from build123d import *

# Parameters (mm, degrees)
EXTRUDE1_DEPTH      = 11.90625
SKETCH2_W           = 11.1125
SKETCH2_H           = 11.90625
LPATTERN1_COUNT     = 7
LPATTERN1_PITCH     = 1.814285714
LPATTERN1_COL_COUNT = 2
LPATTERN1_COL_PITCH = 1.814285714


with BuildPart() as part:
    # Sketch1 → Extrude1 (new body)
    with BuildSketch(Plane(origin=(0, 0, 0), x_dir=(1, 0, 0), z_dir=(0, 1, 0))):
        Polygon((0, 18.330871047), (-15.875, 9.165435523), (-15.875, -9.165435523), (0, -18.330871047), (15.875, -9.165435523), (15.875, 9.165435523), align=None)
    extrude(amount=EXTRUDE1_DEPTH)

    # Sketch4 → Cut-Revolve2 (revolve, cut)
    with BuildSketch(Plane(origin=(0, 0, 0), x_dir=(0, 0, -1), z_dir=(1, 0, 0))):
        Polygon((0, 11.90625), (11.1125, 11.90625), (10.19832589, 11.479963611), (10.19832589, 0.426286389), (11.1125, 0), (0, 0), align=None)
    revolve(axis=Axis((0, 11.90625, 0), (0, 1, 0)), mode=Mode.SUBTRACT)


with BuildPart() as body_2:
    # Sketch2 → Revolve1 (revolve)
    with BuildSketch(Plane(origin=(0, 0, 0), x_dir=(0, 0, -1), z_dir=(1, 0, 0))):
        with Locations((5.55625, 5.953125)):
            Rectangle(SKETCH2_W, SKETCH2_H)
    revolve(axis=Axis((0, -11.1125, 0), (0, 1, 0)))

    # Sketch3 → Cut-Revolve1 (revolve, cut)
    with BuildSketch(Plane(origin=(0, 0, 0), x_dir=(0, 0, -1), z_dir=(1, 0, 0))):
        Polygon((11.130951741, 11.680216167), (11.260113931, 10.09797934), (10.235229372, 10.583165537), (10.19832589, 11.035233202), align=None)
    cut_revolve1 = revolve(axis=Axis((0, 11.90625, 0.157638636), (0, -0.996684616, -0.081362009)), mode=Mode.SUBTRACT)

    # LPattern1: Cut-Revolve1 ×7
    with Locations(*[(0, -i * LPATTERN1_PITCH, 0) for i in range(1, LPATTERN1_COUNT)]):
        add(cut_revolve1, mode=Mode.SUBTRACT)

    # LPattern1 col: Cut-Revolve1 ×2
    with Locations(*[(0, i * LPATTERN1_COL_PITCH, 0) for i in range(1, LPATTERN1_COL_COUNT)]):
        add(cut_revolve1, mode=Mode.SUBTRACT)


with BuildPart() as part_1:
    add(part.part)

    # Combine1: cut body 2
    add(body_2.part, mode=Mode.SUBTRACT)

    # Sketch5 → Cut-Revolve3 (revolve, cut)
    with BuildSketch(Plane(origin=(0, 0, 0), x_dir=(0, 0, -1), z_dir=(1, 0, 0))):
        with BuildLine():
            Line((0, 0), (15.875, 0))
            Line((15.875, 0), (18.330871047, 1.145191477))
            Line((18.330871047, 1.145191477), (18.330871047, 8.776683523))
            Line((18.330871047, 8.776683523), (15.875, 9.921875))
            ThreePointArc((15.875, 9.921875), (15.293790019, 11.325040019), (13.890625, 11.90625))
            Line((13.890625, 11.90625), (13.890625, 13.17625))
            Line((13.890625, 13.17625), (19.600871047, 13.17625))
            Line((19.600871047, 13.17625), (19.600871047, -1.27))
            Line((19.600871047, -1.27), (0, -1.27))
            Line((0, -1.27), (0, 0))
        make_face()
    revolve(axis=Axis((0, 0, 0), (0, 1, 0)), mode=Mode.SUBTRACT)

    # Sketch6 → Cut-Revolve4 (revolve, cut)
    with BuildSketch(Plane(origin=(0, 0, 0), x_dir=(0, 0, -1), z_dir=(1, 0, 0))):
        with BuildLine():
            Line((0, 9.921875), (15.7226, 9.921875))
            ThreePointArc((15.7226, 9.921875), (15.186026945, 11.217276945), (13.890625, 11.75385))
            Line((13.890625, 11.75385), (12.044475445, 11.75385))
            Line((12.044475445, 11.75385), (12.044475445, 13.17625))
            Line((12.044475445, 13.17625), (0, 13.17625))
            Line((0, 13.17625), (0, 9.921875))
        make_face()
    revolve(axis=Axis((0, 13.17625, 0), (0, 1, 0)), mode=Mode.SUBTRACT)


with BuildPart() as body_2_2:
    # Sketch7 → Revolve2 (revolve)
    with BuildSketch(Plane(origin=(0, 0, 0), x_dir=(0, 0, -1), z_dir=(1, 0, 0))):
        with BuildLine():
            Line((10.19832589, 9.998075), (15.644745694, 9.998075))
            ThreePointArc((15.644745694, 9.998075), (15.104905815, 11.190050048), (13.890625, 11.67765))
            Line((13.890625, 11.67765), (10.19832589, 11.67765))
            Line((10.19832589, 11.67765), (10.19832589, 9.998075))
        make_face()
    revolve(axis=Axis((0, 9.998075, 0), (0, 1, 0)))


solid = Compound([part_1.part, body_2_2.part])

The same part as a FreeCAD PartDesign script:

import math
import FreeCAD as App
import Part
import Sketcher
Q = App.Units.Quantity


def add_polygon(sketch, points):
    """Adds a closed chain of lines whose ends are joined by coincident constraints."""
    first, n = sketch.GeometryCount, len(points)
    for a, b in zip(points, points[1:] + points[:1]):
        sketch.addGeometry(Part.LineSegment(App.Vector(*a, 0), App.Vector(*b, 0)), False)
    for i in range(n):
        sketch.addConstraint(Sketcher.Constraint("Coincident", first + i, 2, first + (i + 1) % n, 1))

doc = App.newDocument("Part")
body = doc.addObject("PartDesign::Body", "Body")

# Sketch on XZ plane
sketch1 = body.newObject("Sketcher::SketchObject", "Sketch")
sketch1.AttachmentSupport = (doc.getObject("XZ_Plane"), [""])
sketch1.MapMode = "FlatFace"
add_polygon(sketch1, [(0, -18), (-16, -9), (-16, 9), (0, 18), (16, 9), (16, -9)])  # lines 0-5
sketch1.addConstraint(Sketcher.Constraint("Vertical", 1))
sketch1.addConstraint(Sketcher.Constraint("Vertical", 4))
sketch1.addConstraint(Sketcher.Constraint("Symmetric", 0, 2, 3, 2, -1, 1))
sketch1.addConstraint(Sketcher.Constraint("Symmetric", 2, 2, 5, 2, -1, 1))
sketch1.addConstraint(Sketcher.Constraint("PointOnObject", 2, 2, -2))
sketch1.addConstraint(Sketcher.Constraint("Parallel", 2, 5))
sketch1.addConstraint(Sketcher.Constraint("Horizontal", 1, 2, 3, 2))
sketch1.addConstraint(Sketcher.Constraint("Angle", 0, Q("150 deg")))
sketch1.addConstraint(Sketcher.Constraint("DistanceX", 1, 2, 3, 2, Q("1.25 in")))
sketch1.addConstraint(Sketcher.Constraint("DistanceY", 1, 1, 1, 2, Q("18.330871 mm")))
pad1 = body.newObject("PartDesign::Pad", "Pad")
pad1.Profile = sketch1
pad1.Length = Q("0.46875 in")
pad1.Reversed = True

# Sketch on YZ plane
sketch2 = body.newObject("Sketcher::SketchObject", "Sketch001")
sketch2.AttachmentSupport = (doc.getObject("YZ_Plane"), [""])
sketch2.MapMode = "FlatFace"
add_polygon(sketch2, [(11.9, -11.1), (11.9, 0), (0, 0), (0, -11.1), (0.4, -10.2), (11.5, -10.2)])  # lines 0-5
sketch2.addConstraint(Sketcher.Constraint("Vertical", 0))
sketch2.addConstraint(Sketcher.Constraint("Horizontal", 1))
sketch2.addConstraint(Sketcher.Constraint("Vertical", 2))
sketch2.addConstraint(Sketcher.Constraint("Horizontal", 4))
sketch2.addConstraint(Sketcher.Constraint("Coincident", 1, 2, -1, 1))
sketch2.addConstraint(Sketcher.Constraint("Horizontal", 2, 2, 5, 2))
sketch2.addConstraint(Sketcher.Constraint("Equal", 3, 5))
sketch2.addConstraint(Sketcher.Constraint("Angle", 3, Q("65 deg")))
sketch2.addConstraint(Sketcher.Constraint("DistanceX", 1, 2, 1, 1, Q("0.46875 in")))
sketch2.addConstraint(Sketcher.Constraint("DistanceY", 0, 1, 0, 2, Q("0.4375 in")))
sketch2.addConstraint(Sketcher.Constraint("Distance", 3, Q("1.00868 mm")))
groove = body.newObject("PartDesign::Groove", "Groove")
groove.Profile = sketch2
groove.ReferenceAxis = (sketch2, ["H_Axis"])
groove.Angle = 360
body2 = doc.addObject("PartDesign::Body", "Body001")

# Sketch on YZ plane
sketch3 = body2.newObject("Sketcher::SketchObject", "Sketch002")
sketch3.AttachmentSupport = (doc.getObject("YZ_Plane001"), [""])
sketch3.MapMode = "FlatFace"
add_polygon(sketch3, [(12, 0), (0, 0), (0, -11), (12, -11)])  # lines 0-3
sketch3.addConstraint(Sketcher.Constraint("Horizontal", 0))
sketch3.addConstraint(Sketcher.Constraint("Vertical", 1))
sketch3.addConstraint(Sketcher.Constraint("Horizontal", 2))
sketch3.addConstraint(Sketcher.Constraint("Vertical", 3))
sketch3.addConstraint(Sketcher.Constraint("Coincident", 0, 2, -1, 1))
sketch3.addConstraint(Sketcher.Constraint("DistanceX", 0, 2, 0, 1, Q("0.46875 in")))
sketch3.addConstraint(Sketcher.Constraint("DistanceY", 1, 2, 1, 1, Q("0.4375 in")))
revolution = body2.newObject("PartDesign::Revolution", "Revolution")
revolution.Profile = sketch3
revolution.ReferenceAxis = (sketch3, ["H_Axis"])
revolution.Angle = 360

# Sketch on YZ plane
sketch4 = body2.newObject("Sketcher::SketchObject", "Sketch003")
sketch4.AttachmentSupport = (doc.getObject("YZ_Plane001"), [""])
sketch4.MapMode = "FlatFace"
add_polygon(sketch4, [(10.1, -11.26), (11.68, -11.13), (11.04, -10.2), (10.58, -10.24)])  # lines 0-3
sketch4.addGeometry(Part.LineSegment(App.Vector(10.77, 0.06, 0), App.Vector(9.18, -0.06, 0)), True)  # axis
sketch4.addConstraint(Sketcher.Constraint("Parallel", 0, 2))
sketch4.addConstraint(Sketcher.Constraint("Parallel", 2, 4))
sketch4.addConstraint(Sketcher.Constraint("Equal", 1, 3))
sketch4.addConstraint(Sketcher.Constraint("Equal", 0, 4))
sketch4.addConstraint(Sketcher.Constraint("Distance", 0, Q("0.0625 in")))
sketch4.addConstraint(Sketcher.Constraint("Distance", 1, Q("1.133929 mm")))
sketch4.addConstraint(Sketcher.Constraint("Distance", 2, Q("0.453571 mm")))
sketch4.addConstraint(Sketcher.Constraint("DistanceY", 0, 2, -1, 1, Q("11.130952 mm")))
sketch4.addConstraint(Sketcher.Constraint("DistanceY", 2, 2, -1, 1, Q("10.235229 mm")))
sketch4.addConstraint(Sketcher.Constraint("DistanceX", -1, 1, 3, 2, Q("10.097979 mm")))
sketch4.addConstraint(Sketcher.Constraint("DistanceY", -1, 1, 4, 1, Q("0.064581 mm")))
sketch4.addConstraint(Sketcher.Constraint("DistanceX", -1, 1, 4, 2, Q("9.184058 mm")))
groove2 = body2.newObject("PartDesign::Groove", "Groove001")
groove2.Profile = sketch4
groove2.ReferenceAxis = (sketch4, ["Axis0"])
groove2.Angle = 360
doc.recompute()

linearpattern = body2.newObject("PartDesign::LinearPattern", "LinearPattern")
linearpattern.Originals = [groove2]
linearpattern.Direction = (doc.getObject("Y_Axis001"), [""])
linearpattern.Mode = "offset"
linearpattern.Offset = 1.814286
linearpattern.Occurrences = 7
linearpattern.Reversed = True
body2.Tip = linearpattern
doc.recompute()

linearpattern2 = body2.newObject("PartDesign::LinearPattern", "LinearPattern001")
linearpattern2.Originals = [groove2]
linearpattern2.Direction = (doc.getObject("Y_Axis001"), [""])
linearpattern2.Mode = "offset"
linearpattern2.Offset = 1.814286
linearpattern2.Occurrences = 2
body2.Tip = linearpattern2
doc.recompute()

boolean = body.newObject("PartDesign::Boolean", "Boolean")
boolean.Type = "Cut"
boolean.addObjects([body2])

# Sketch on YZ plane
sketch5 = body.newObject("Sketcher::SketchObject", "Sketch004")
sketch5.AttachmentSupport = (doc.getObject("YZ_Plane"), [""])
sketch5.MapMode = "FlatFace"
sketch5.addGeometry(Part.LineSegment(App.Vector(0, -15.9, 0), App.Vector(0, 0, 0)), False)
sketch5.addGeometry(Part.LineSegment(App.Vector(0, 0, 0), App.Vector(-1.3, 0, 0)), False)
sketch5.addGeometry(Part.LineSegment(App.Vector(-1.3, 0, 0), App.Vector(-1.3, -19.6, 0)), False)
sketch5.addGeometry(Part.LineSegment(App.Vector(-1.3, -19.6, 0), App.Vector(13.2, -19.6, 0)), False)
sketch5.addGeometry(Part.LineSegment(App.Vector(13.2, -19.6, 0), App.Vector(13.2, -13.9, 0)), False)
sketch5.addGeometry(Part.LineSegment(App.Vector(13.2, -13.9, 0), App.Vector(11.9, -13.9, 0)), False)
sketch5.addGeometry(Part.ArcOfCircle(Part.Circle(App.Vector(9.9, -13.9, 0), App.Vector(0, 0, 1), 2), math.radians(-90), math.radians(0)), False)
sketch5.addGeometry(Part.LineSegment(App.Vector(9.9, -15.9, 0), App.Vector(8.8, -18.3, 0)), False)
sketch5.addGeometry(Part.LineSegment(App.Vector(8.8, -18.3, 0), App.Vector(1.1, -18.3, 0)), False)
sketch5.addGeometry(Part.LineSegment(App.Vector(1.1, -18.3, 0), App.Vector(0, -15.9, 0)), False)
sketch5.addConstraint(Sketcher.Constraint("Coincident", 0, 2, 1, 1))
sketch5.addConstraint(Sketcher.Constraint("Coincident", 1, 2, 2, 1))
sketch5.addConstraint(Sketcher.Constraint("Coincident", 2, 2, 3, 1))
sketch5.addConstraint(Sketcher.Constraint("Coincident", 3, 2, 4, 1))
sketch5.addConstraint(Sketcher.Constraint("Coincident", 4, 2, 5, 1))
sketch5.addConstraint(Sketcher.Constraint("Coincident", 5, 2, 6, 2))
sketch5.addConstraint(Sketcher.Constraint("Coincident", 6, 1, 7, 1))
sketch5.addConstraint(Sketcher.Constraint("Coincident", 7, 2, 8, 1))
sketch5.addConstraint(Sketcher.Constraint("Coincident", 8, 2, 9, 1))
sketch5.addConstraint(Sketcher.Constraint("Coincident", 9, 2, 0, 1))
sketch5.addConstraint(Sketcher.Constraint("Vertical", 0))
sketch5.addConstraint(Sketcher.Constraint("Horizontal", 1))
sketch5.addConstraint(Sketcher.Constraint("Vertical", 2))
sketch5.addConstraint(Sketcher.Constraint("Horizontal", 3))
sketch5.addConstraint(Sketcher.Constraint("Vertical", 4))
sketch5.addConstraint(Sketcher.Constraint("Horizontal", 5))
sketch5.addConstraint(Sketcher.Constraint("Horizontal", 8))
sketch5.addConstraint(Sketcher.Constraint("Coincident", 0, 2, -1, 1))
sketch5.addConstraint(Sketcher.Constraint("Horizontal", 6, 3, 4, 2))
sketch5.addConstraint(Sketcher.Constraint("Horizontal", 6, 1, 9, 2))
sketch5.addConstraint(Sketcher.Constraint("Equal", 1, 5))
sketch5.addConstraint(Sketcher.Constraint("Equal", 7, 9))
sketch5.addConstraint(Sketcher.Constraint("Angle", 7, Q("-115 deg")))
sketch5.addConstraint(Sketcher.Constraint("Radius", 6, Q("0.078125 in")))
sketch5.addConstraint(Sketcher.Constraint("DistanceX", 1, 2, 1, 1, Q("0.05 in")))
sketch5.addConstraint(Sketcher.Constraint("DistanceY", 0, 1, 0, 2, Q("0.625 in")))
sketch5.addConstraint(Sketcher.Constraint("DistanceY", 3, 2, 7, 2, Q("0.05 in")))
sketch5.addConstraint(Sketcher.Constraint("DistanceX", -1, 1, 6, 3, Q("0.390625 in")))
sketch5.addConstraint(Sketcher.Constraint("DistanceX", -1, 1, 6, 1, Q("0.390625 in")))
sketch5.addConstraint(Sketcher.Constraint("DistanceY", 2, 2, 2, 1, Q("19.600871 mm")))
groove3 = body.newObject("PartDesign::Groove", "Groove002")
groove3.Profile = sketch5
groove3.ReferenceAxis = (sketch5, ["H_Axis"])
groove3.Angle = 360

# Sketch on YZ plane
sketch6 = body.newObject("Sketcher::SketchObject", "Sketch005")
sketch6.AttachmentSupport = (doc.getObject("YZ_Plane"), [""])
sketch6.MapMode = "FlatFace"
sketch6.addGeometry(Part.LineSegment(App.Vector(9.9, 0, 0), App.Vector(9.9, -15.7, 0)), False)
sketch6.addGeometry(Part.ArcOfCircle(Part.Circle(App.Vector(9.9, -13.9, 0), App.Vector(0, 0, 1), 1.8), math.radians(-90), math.radians(0)), False)
sketch6.addGeometry(Part.LineSegment(App.Vector(11.8, -13.9, 0), App.Vector(11.8, -12, 0)), False)
sketch6.addGeometry(Part.LineSegment(App.Vector(11.8, -12, 0), App.Vector(13.2, -12, 0)), False)
sketch6.addGeometry(Part.LineSegment(App.Vector(13.2, -12, 0), App.Vector(13.2, 0, 0)), False)
sketch6.addGeometry(Part.LineSegment(App.Vector(13.2, 0, 0), App.Vector(9.9, 0, 0)), False)
sketch6.addConstraint(Sketcher.Constraint("Coincident", 0, 2, 1, 1))
sketch6.addConstraint(Sketcher.Constraint("Tangent", 1, 2, 2, 1))
sketch6.addConstraint(Sketcher.Constraint("Coincident", 2, 2, 3, 1))
sketch6.addConstraint(Sketcher.Constraint("Coincident", 3, 2, 4, 1))
sketch6.addConstraint(Sketcher.Constraint("Coincident", 4, 2, 5, 1))
sketch6.addConstraint(Sketcher.Constraint("Coincident", 5, 2, 0, 1))
sketch6.addConstraint(Sketcher.Constraint("Vertical", 0))
sketch6.addConstraint(Sketcher.Constraint("Vertical", 2))
sketch6.addConstraint(Sketcher.Constraint("Horizontal", 3))
sketch6.addConstraint(Sketcher.Constraint("Vertical", 4))
sketch6.addConstraint(Sketcher.Constraint("Horizontal", 5))
sketch6.addConstraint(Sketcher.Constraint("PointOnObject", 4, 2, -1))
sketch6.addConstraint(Sketcher.Constraint("Vertical", 1, 3, 0, 2))
sketch6.addConstraint(Sketcher.Constraint("DistanceX", 3, 1, 3, 2, Q("0.056 in")))
sketch6.addConstraint(Sketcher.Constraint("DistanceY", 0, 2, 0, 1, Q("0.619 in")))
sketch6.addConstraint(Sketcher.Constraint("DistanceX", -1, 1, 1, 3, Q("0.390625 in")))
sketch6.addConstraint(Sketcher.Constraint("DistanceY", 1, 3, -1, 1, Q("0.546875 in")))
sketch6.addConstraint(Sketcher.Constraint("DistanceY", 2, 1, 2, 2, Q("1.84615 mm")))
groove4 = body.newObject("PartDesign::Groove", "Groove003")
groove4.Profile = sketch6
groove4.ReferenceAxis = (sketch6, ["H_Axis"])
groove4.Angle = 360
body3 = doc.addObject("PartDesign::Body", "Body002")

# Sketch on YZ plane
sketch7 = body3.newObject("Sketcher::SketchObject", "Sketch006")
sketch7.AttachmentSupport = (doc.getObject("YZ_Plane002"), [""])
sketch7.MapMode = "FlatFace"
sketch7.addGeometry(Part.LineSegment(App.Vector(10, -10.2, 0), App.Vector(10, -15.6, 0)), False)
sketch7.addGeometry(Part.ArcOfCircle(Part.Circle(App.Vector(9.9, -13.9, 0), App.Vector(0, 0, 1), 1.8), math.radians(-88), math.radians(0)), False)
sketch7.addGeometry(Part.LineSegment(App.Vector(11.7, -13.9, 0), App.Vector(11.7, -10.2, 0)), False)
sketch7.addGeometry(Part.LineSegment(App.Vector(11.7, -10.2, 0), App.Vector(10, -10.2, 0)), False)
sketch7.addConstraint(Sketcher.Constraint("Coincident", 0, 2, 1, 1))
sketch7.addConstraint(Sketcher.Constraint("Tangent", 1, 2, 2, 1))
sketch7.addConstraint(Sketcher.Constraint("Coincident", 2, 2, 3, 1))
sketch7.addConstraint(Sketcher.Constraint("Coincident", 3, 2, 0, 1))
sketch7.addConstraint(Sketcher.Constraint("Vertical", 0))
sketch7.addConstraint(Sketcher.Constraint("Vertical", 2))
sketch7.addConstraint(Sketcher.Constraint("Horizontal", 3))
sketch7.addConstraint(Sketcher.Constraint("DistanceX", -1, 1, 1, 3, Q("0.390625 in")))
sketch7.addConstraint(Sketcher.Constraint("DistanceY", 1, 3, -1, 1, Q("0.546875 in")))
sketch7.addConstraint(Sketcher.Constraint("DistanceX", 1, 3, 0, 2, Q("0.003 in")))
sketch7.addConstraint(Sketcher.Constraint("DistanceY", 2, 1, 2, 2, Q("3.692299 mm")))
sketch7.addConstraint(Sketcher.Constraint("Radius", 1, Q("1.755775 mm")))
revolution2 = body3.newObject("PartDesign::Revolution", "Revolution001")
revolution2.Profile = sketch7
revolution2.ReferenceAxis = (sketch7, ["H_Axis"])
revolution2.Angle = 360

doc.recompute()
